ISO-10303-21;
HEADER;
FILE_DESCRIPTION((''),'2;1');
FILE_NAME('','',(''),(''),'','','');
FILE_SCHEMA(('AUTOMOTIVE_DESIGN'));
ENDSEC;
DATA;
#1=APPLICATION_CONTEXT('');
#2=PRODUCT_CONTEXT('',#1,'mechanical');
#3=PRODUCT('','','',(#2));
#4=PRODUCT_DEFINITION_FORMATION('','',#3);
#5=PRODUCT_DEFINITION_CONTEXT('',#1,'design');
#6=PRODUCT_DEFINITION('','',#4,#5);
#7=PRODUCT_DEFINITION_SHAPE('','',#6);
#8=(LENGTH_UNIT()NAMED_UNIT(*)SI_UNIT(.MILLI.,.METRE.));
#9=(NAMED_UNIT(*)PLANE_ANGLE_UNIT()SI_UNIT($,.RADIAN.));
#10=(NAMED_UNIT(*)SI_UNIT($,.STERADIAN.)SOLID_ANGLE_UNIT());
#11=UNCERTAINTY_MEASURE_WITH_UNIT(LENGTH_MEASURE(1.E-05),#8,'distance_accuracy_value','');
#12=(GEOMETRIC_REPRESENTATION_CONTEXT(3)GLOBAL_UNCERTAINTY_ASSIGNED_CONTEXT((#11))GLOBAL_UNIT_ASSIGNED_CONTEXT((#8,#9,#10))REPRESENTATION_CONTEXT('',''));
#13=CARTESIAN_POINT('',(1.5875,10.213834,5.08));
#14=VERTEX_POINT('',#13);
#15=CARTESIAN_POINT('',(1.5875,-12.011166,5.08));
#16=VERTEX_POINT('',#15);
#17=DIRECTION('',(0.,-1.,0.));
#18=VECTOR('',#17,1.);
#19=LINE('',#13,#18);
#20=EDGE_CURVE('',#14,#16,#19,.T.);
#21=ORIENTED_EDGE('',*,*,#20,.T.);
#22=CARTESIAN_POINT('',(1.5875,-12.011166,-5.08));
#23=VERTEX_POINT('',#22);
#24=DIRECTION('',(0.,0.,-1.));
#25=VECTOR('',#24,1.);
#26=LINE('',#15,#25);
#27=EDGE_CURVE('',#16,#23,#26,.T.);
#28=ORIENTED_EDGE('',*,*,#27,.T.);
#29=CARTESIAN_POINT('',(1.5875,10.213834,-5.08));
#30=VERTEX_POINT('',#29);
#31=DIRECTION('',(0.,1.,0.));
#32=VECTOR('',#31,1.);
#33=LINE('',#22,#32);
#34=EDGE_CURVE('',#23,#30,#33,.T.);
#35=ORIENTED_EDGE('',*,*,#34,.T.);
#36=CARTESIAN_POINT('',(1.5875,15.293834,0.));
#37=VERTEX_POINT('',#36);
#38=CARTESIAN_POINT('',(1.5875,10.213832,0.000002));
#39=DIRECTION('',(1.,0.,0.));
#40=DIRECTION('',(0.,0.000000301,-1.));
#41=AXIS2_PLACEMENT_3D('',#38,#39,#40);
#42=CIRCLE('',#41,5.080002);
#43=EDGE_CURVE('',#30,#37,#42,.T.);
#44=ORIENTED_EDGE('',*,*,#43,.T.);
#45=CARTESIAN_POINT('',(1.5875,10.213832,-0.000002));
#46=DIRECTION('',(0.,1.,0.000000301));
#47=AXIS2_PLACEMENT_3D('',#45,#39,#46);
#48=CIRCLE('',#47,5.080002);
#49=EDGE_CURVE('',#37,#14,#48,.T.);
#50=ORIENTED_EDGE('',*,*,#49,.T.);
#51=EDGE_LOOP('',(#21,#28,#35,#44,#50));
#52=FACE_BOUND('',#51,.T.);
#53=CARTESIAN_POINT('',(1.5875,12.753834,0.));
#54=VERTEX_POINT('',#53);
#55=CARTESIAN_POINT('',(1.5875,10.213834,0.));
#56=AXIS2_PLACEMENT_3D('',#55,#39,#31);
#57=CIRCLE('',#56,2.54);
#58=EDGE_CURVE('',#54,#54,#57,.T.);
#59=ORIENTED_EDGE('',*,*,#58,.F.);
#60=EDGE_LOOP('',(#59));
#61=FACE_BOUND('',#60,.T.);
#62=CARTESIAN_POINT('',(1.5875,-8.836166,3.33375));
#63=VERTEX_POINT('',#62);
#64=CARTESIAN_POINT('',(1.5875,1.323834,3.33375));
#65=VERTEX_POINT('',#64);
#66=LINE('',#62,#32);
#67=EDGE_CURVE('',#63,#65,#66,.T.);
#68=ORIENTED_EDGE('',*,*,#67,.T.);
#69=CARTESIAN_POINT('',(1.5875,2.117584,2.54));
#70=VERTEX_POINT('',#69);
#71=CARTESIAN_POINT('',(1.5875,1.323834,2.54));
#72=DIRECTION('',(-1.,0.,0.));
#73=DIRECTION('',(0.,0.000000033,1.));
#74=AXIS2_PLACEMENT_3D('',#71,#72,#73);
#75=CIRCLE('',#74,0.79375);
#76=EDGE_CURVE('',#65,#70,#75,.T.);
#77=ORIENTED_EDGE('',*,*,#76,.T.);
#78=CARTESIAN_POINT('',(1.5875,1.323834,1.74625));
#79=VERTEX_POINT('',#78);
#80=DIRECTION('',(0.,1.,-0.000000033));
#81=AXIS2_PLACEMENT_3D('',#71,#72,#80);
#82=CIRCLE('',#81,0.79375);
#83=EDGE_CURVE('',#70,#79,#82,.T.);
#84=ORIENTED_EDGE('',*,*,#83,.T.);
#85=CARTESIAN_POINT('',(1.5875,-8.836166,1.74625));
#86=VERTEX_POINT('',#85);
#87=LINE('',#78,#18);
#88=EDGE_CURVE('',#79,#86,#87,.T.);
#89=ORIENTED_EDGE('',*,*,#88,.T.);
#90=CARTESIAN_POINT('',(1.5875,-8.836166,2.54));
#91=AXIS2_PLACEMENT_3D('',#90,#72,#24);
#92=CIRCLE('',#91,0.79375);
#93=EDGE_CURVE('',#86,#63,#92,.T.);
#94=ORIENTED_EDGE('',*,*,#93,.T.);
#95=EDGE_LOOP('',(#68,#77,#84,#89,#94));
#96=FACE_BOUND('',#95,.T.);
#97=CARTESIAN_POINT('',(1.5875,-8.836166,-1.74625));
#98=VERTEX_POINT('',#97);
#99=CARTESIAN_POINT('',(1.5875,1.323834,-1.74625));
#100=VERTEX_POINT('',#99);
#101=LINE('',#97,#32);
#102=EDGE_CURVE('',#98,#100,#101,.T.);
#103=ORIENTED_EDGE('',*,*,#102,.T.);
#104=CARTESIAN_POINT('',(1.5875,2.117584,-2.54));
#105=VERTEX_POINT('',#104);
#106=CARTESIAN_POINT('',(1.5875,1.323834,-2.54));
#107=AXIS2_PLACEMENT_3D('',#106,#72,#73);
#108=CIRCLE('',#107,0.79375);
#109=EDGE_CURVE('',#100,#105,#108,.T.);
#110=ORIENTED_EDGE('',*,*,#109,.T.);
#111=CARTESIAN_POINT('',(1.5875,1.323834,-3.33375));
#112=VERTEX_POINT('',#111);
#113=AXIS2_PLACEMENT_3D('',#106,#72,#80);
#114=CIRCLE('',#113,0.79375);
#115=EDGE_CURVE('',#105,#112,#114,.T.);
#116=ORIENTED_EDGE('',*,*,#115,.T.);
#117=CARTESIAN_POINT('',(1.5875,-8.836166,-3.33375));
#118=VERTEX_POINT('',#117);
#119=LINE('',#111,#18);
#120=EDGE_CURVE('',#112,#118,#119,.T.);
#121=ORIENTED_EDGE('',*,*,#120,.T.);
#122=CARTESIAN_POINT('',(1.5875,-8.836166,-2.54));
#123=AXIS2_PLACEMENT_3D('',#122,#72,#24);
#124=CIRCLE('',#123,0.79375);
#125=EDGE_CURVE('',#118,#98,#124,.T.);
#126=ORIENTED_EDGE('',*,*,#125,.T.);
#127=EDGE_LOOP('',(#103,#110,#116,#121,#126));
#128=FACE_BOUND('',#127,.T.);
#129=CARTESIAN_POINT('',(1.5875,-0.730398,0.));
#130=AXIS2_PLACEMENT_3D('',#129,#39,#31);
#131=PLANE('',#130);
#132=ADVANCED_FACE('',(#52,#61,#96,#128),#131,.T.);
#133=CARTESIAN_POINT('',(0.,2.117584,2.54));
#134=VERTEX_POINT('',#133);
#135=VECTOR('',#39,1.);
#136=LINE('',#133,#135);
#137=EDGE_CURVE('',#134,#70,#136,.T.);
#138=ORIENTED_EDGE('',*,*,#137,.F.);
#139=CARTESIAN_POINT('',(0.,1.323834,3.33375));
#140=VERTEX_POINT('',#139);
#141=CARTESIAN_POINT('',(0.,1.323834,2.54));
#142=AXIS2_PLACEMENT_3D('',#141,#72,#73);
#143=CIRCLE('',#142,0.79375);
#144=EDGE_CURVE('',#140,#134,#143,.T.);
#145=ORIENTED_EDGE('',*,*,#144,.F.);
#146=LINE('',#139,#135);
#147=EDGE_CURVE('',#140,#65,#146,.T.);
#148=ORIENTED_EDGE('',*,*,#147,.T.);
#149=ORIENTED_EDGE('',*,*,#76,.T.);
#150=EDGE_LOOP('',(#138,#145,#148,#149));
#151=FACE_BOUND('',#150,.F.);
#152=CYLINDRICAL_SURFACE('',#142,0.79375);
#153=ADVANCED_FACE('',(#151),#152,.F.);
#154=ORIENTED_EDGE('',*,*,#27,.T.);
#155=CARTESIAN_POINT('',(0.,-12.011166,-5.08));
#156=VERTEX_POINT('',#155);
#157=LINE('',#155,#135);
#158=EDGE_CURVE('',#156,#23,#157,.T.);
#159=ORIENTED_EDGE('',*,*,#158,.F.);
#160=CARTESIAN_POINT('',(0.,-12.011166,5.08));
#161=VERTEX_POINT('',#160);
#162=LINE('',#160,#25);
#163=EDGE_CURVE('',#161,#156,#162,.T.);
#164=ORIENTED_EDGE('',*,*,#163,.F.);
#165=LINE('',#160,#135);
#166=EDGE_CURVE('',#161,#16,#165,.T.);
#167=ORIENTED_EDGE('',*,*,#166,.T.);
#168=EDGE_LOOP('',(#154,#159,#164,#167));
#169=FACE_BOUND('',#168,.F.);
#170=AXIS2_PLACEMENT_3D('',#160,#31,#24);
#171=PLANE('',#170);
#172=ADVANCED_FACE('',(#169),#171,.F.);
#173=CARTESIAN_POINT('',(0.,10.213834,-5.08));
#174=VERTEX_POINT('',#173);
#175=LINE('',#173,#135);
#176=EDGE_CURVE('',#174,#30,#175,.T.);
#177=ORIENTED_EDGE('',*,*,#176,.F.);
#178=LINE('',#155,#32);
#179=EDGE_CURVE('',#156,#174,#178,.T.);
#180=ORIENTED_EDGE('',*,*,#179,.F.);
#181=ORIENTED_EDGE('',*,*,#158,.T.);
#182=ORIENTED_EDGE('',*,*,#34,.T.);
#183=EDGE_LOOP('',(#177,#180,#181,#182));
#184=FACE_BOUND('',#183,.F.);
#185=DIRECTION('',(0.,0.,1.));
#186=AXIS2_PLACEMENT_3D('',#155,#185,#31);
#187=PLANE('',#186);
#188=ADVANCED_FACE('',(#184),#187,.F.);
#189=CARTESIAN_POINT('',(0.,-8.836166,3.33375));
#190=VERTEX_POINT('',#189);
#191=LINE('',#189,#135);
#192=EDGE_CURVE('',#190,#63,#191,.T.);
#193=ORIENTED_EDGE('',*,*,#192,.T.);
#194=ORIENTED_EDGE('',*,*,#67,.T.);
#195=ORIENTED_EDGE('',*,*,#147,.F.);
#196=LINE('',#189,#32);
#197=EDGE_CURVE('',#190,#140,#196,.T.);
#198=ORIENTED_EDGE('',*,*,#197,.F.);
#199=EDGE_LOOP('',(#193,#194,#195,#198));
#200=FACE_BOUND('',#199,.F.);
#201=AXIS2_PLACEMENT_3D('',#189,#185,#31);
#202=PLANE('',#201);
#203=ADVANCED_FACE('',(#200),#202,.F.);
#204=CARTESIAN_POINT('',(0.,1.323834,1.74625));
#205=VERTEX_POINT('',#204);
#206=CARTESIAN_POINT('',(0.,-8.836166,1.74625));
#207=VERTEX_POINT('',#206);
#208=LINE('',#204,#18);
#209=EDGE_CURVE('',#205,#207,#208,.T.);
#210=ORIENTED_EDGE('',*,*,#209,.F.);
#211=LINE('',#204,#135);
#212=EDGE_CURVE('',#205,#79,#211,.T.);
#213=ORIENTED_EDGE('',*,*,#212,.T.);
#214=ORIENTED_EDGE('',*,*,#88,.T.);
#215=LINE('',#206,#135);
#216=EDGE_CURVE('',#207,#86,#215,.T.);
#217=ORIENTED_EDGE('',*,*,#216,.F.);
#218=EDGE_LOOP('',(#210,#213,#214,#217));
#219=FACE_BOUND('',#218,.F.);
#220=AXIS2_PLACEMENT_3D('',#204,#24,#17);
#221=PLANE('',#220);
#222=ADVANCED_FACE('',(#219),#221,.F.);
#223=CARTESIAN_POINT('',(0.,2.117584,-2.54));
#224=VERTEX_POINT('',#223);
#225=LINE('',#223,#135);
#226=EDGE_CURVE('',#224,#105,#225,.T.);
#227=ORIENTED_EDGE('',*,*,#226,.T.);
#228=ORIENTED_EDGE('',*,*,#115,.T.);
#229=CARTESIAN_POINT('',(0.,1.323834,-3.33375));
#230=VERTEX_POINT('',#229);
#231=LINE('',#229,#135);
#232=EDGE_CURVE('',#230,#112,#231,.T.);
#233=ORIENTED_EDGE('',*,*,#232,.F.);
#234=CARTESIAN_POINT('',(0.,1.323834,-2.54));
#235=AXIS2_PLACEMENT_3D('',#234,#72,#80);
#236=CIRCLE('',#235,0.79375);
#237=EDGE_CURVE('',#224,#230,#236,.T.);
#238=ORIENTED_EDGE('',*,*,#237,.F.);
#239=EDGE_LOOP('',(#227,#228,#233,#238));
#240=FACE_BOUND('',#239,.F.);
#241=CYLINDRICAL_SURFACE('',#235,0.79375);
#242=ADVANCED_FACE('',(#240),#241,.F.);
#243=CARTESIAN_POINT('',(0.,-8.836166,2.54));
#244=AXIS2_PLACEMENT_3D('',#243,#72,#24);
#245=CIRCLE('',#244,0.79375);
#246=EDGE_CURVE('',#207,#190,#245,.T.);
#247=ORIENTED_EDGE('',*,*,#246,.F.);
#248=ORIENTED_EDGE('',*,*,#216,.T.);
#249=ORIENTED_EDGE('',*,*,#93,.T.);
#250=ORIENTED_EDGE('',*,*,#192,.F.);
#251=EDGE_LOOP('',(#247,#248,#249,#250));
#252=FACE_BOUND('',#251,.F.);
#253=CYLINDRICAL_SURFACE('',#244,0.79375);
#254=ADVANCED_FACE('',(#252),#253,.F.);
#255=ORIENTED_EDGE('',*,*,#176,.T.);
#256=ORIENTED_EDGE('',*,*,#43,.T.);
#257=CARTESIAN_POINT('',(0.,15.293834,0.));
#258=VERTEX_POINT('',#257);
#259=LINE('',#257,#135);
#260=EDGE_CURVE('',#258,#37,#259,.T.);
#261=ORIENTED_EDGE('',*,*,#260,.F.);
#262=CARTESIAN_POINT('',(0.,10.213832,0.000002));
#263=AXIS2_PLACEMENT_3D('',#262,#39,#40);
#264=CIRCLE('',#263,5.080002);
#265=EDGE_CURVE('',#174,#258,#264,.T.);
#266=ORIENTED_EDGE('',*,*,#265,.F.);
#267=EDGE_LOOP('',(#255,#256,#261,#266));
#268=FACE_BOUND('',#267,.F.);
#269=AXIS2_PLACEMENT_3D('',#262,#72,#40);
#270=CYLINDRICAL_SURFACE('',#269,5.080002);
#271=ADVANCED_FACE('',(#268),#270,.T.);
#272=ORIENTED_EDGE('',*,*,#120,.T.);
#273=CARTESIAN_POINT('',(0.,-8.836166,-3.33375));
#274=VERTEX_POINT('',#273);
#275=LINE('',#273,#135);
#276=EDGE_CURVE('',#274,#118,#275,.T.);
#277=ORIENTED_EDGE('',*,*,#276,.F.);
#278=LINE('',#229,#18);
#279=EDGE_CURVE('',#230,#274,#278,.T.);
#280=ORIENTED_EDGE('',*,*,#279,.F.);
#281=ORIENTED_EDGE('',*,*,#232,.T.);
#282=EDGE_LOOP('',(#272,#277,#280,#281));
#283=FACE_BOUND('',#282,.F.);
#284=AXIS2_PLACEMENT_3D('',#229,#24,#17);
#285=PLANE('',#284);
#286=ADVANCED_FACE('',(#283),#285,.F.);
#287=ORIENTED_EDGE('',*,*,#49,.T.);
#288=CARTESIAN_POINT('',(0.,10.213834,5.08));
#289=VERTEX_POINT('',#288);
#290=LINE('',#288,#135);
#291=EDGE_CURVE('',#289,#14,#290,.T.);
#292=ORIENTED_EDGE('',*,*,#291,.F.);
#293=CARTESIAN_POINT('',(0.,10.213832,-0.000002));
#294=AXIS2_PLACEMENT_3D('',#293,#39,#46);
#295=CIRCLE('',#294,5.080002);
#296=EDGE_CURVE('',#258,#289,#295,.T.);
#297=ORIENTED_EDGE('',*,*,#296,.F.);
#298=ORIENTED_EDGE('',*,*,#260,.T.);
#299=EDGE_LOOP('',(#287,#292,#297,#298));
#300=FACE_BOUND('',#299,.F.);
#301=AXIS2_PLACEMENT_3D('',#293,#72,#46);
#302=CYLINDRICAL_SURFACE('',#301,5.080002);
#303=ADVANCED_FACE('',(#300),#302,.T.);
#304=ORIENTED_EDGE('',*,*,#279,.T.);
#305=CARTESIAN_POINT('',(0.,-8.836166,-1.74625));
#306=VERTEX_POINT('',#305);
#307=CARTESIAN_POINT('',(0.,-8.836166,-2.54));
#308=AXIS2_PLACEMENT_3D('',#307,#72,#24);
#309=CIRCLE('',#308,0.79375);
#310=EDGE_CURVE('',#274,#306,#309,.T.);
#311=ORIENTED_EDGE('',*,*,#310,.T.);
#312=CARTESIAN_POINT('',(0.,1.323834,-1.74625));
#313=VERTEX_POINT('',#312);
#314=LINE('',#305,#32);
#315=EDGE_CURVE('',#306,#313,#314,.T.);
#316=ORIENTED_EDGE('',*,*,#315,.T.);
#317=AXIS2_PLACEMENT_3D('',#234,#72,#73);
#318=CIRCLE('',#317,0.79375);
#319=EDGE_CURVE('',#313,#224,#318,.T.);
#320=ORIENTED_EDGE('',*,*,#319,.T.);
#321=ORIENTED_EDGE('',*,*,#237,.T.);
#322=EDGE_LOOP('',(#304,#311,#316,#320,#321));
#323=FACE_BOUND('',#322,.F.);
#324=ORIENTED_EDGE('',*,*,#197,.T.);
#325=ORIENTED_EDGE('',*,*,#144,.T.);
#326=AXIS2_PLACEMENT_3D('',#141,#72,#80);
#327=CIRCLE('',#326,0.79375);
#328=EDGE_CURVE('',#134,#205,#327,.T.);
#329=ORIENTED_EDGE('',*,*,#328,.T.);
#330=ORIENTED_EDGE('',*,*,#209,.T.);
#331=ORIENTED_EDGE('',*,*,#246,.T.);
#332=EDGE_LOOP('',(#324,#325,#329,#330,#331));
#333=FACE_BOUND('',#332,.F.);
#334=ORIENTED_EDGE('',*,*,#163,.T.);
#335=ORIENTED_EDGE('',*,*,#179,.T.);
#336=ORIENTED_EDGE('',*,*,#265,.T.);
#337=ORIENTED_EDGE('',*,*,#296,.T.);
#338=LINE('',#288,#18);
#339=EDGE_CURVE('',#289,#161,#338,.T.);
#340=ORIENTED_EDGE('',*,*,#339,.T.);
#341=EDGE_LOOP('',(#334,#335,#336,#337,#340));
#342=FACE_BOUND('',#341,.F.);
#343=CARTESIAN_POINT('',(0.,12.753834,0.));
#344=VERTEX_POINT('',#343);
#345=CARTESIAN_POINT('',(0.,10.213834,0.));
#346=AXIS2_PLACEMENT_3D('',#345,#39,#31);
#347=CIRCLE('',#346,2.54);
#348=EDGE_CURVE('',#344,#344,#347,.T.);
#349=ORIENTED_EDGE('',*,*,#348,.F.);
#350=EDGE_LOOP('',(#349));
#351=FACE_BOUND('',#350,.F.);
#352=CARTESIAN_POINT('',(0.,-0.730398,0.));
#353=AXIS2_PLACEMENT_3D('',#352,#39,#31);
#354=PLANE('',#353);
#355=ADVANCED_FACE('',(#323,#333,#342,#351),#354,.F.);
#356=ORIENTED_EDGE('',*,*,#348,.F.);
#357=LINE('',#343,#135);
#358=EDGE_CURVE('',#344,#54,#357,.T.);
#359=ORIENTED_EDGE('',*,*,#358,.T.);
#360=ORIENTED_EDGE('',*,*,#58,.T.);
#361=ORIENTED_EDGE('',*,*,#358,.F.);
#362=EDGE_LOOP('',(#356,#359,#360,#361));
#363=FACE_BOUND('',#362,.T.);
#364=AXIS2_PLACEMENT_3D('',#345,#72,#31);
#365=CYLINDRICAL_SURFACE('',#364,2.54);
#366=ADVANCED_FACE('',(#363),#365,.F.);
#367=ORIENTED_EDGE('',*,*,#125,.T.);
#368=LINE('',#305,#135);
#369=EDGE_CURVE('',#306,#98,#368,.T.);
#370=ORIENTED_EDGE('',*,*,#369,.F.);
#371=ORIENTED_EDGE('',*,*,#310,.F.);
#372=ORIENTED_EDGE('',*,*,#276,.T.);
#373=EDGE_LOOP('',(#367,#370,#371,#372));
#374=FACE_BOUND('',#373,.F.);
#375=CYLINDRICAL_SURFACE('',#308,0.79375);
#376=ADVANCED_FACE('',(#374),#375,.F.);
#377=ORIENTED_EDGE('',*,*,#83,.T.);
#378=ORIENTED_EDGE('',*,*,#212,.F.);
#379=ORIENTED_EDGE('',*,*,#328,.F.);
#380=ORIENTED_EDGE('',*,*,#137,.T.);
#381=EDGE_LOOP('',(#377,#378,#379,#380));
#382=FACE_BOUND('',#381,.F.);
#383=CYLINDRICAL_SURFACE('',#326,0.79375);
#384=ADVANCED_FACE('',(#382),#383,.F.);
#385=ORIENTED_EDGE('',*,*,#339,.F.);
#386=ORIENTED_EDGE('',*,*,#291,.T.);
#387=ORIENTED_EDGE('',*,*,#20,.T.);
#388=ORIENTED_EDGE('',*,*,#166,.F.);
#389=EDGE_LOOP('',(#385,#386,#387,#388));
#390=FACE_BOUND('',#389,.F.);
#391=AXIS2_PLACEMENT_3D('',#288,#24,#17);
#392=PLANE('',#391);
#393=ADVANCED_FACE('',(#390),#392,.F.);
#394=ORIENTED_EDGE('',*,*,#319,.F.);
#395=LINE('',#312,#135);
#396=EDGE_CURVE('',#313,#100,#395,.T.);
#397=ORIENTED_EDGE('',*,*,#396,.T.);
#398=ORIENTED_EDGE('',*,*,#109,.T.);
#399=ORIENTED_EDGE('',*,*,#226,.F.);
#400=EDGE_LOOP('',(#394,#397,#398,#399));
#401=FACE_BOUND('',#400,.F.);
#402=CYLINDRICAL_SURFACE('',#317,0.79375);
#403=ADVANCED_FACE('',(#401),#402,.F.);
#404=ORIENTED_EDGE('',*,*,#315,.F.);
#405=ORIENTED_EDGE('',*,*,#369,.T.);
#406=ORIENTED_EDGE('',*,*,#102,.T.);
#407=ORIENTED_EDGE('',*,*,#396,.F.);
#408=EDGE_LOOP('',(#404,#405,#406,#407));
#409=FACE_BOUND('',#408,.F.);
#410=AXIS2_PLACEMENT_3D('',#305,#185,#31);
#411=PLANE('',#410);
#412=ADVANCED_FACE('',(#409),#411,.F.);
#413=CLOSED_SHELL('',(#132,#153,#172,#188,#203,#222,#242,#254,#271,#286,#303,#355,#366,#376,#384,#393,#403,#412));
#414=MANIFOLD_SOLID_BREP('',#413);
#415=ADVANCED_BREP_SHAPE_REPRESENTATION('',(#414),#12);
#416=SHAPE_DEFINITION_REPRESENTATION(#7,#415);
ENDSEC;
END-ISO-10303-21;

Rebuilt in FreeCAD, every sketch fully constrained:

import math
import FreeCAD as App
import Part
import Sketcher
from FreeCAD import Vector
Q = App.Units.Quantity

doc = App.newDocument("Part")
body = doc.addObject("PartDesign::Body", "Body")

# Sketch on YZ plane
sketch1 = doc.addObject("Sketcher::SketchObject", "Sketch")
body.addObject(sketch1)
sketch1.AttachmentSupport = (doc.YZ_Plane, [""])
sketch1.MapMode = "FlatFace"
sketch1.addGeometry([
    Part.LineSegment(Vector(10.2, 5.1, 0), Vector(-12, 5.1, 0)),  # 0
    Part.LineSegment(Vector(-12, 5.1, 0), Vector(-12, -5.1, 0)),  # 1
    Part.LineSegment(Vector(-12, -5.1, 0), Vector(10.2, -5.1, 0)),  # 2
    Part.ArcOfCircle(Part.Circle(Vector(10.2, 0, 0), Vector(0, 0, 1), 5.1), math.radians(-90), math.radians(0)),  # 3
    Part.ArcOfCircle(Part.Circle(Vector(10.2, 0, 0), Vector(0, 0, 1), 5.1), math.radians(0), math.radians(90)),  # 4
    Part.LineSegment(Vector(1.3, -3.3, 0), Vector(-8.8, -3.3, 0)),  # 5
    Part.ArcOfCircle(Part.Circle(Vector(-8.8, -2.5, 0), Vector(0, 0, 1), 0.8), math.radians(90), math.radians(270)),  # 6
    Part.LineSegment(Vector(-8.8, -1.7, 0), Vector(1.3, -1.7, 0)),  # 7
    Part.ArcOfCircle(Part.Circle(Vector(1.3, -2.5, 0), Vector(0, 0, 1), 0.8), math.radians(0), math.radians(90)),  # 8
    Part.ArcOfCircle(Part.Circle(Vector(1.3, -2.5, 0), Vector(0, 0, 1), 0.8), math.radians(-90), math.radians(0)),  # 9
    Part.Circle(Vector(10.2, 0, 0), Vector(0, 0, 1), 2.5),  # 10
    Part.LineSegment(Vector(1.3, 1.7, 0), Vector(-8.8, 1.7, 0)),  # 11
    Part.ArcOfCircle(Part.Circle(Vector(-8.8, 2.5, 0), Vector(0, 0, 1), 0.8), math.radians(90), math.radians(270)),  # 12
    Part.LineSegment(Vector(-8.8, 3.3, 0), Vector(1.3, 3.3, 0)),  # 13
    Part.ArcOfCircle(Part.Circle(Vector(1.3, 2.5, 0), Vector(0, 0, 1), 0.8), math.radians(0), math.radians(90)),  # 14
    Part.ArcOfCircle(Part.Circle(Vector(1.3, 2.5, 0), Vector(0, 0, 1), 0.8), math.radians(-90), math.radians(0)),  # 15
], False)
sketch1.addConstraint([
    Sketcher.Constraint("Coincident", 0, 2, 1, 1),
    Sketcher.Constraint("Coincident", 1, 2, 2, 1),
    Sketcher.Constraint("Tangent", 2, 2, 3, 1),
    Sketcher.Constraint("Tangent", 3, 2, 4, 1),
    Sketcher.Constraint("Tangent", 4, 2, 0, 1),
    Sketcher.Constraint("Tangent", 5, 2, 6, 2),
    Sketcher.Constraint("Tangent", 6, 1, 7, 1),
    Sketcher.Constraint("Tangent", 7, 2, 8, 2),
    Sketcher.Constraint("Tangent", 8, 1, 9, 2),
    Sketcher.Constraint("Tangent", 9, 1, 5, 1),
    Sketcher.Constraint("Tangent", 11, 2, 12, 2),
    Sketcher.Constraint("Tangent", 12, 1, 13, 1),
    Sketcher.Constraint("Tangent", 13, 2, 14, 2),
    Sketcher.Constraint("Tangent", 14, 1, 15, 2),
    Sketcher.Constraint("Tangent", 15, 1, 11, 1),
    Sketcher.Constraint("Horizontal", 0),
    Sketcher.Constraint("Vertical", 1),
    Sketcher.Constraint("Horizontal", 2),
    Sketcher.Constraint("Horizontal", 5),
    Sketcher.Constraint("Horizontal", 7),
    Sketcher.Constraint("Horizontal", 11),
    Sketcher.Constraint("Horizontal", 13),
    Sketcher.Constraint("Coincident", 10, 3, 3, 3),
    Sketcher.Constraint("Equal", 3, 4),
    Sketcher.Constraint("Equal", 6, 8),
    Sketcher.Constraint("Equal", 9, 12),
    Sketcher.Constraint("Equal", 12, 14),
    Sketcher.Constraint("Symmetric", 6, 3, 12, 3, -1),
    Sketcher.Constraint("Symmetric", 8, 1, 14, 1, -1),
    Sketcher.Constraint("PointOnObject", 3, 3, -1),
    Sketcher.Constraint("PointOnObject", 3, 2, -1),
    Sketcher.Constraint("Horizontal", 9, 3, 8, 1),
    Sketcher.Constraint("Equal", 13, 1),
    Sketcher.Constraint("Diameter", 10, Q("0.2 in")),
    Sketcher.Constraint("Radius", 3, Q("0.2000001 in")),
    Sketcher.Constraint("Radius", 6, Q("0.03125 in")),
    Sketcher.Constraint("DistanceY", 6, 3, -1, 1, Q("0.1 in")),
    Sketcher.Constraint("DistanceX", 0, 2, 0, 1, Q("0.875 in")),
    Sketcher.Constraint("DistanceX", 6, 3, 4, 3, Q("0.7499999 in")),
    Sketcher.Constraint("DistanceX", -1, 1, 3, 3, 10.213832),
])
pad1 = doc.addObject("PartDesign::Pad", "Pad")
body.addObject(pad1)
pad1.Profile = sketch1
pad1.Length = Q("0.0625 in")

doc.recompute()
